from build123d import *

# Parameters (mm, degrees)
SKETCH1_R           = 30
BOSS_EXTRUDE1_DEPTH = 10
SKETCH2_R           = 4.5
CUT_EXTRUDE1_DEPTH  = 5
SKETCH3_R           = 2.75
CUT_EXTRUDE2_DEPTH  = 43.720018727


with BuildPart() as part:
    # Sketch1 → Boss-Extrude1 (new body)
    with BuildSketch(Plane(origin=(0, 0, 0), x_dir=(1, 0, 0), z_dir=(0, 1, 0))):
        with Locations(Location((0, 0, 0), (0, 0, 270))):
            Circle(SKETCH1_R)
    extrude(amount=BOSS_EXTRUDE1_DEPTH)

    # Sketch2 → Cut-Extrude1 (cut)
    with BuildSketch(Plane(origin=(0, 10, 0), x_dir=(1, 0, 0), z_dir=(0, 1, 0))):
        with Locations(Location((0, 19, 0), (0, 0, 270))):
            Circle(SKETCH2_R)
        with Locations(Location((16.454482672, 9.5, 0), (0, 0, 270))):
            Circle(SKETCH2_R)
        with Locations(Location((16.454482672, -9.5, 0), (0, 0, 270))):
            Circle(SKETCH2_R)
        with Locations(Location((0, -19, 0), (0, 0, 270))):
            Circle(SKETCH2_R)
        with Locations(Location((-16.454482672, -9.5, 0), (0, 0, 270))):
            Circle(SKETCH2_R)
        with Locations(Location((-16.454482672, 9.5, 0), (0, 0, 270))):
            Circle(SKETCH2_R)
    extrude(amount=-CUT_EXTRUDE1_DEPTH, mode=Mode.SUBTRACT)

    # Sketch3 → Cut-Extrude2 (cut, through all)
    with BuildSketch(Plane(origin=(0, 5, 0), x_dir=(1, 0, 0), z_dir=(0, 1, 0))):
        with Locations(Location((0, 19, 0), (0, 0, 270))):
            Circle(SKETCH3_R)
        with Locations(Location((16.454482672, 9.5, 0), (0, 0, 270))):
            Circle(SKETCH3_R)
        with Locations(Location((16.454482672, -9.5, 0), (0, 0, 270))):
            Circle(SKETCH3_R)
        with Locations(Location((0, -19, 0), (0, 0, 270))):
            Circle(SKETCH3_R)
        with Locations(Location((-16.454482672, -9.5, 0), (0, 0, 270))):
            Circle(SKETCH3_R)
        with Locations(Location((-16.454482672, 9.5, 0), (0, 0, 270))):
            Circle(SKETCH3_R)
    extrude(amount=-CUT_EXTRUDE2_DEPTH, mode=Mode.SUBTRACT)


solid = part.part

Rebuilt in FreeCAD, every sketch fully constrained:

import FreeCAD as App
import Part
import Sketcher
from FreeCAD import Vector

doc = App.newDocument("Part")
body = doc.addObject("PartDesign::Body", "Body")

# Sketch on XZ plane
sketch1 = body.newObject("Sketcher::SketchObject", "Sketch")
sketch1.AttachmentSupport = (doc.getObject("XZ_Plane"), [""])
sketch1.MapMode = "FlatFace"
sketch1.addGeometry(Part.Circle(Vector(0, 0, 0), Vector(0, 0, 1), 30), False)
sketch1.addConstraint(Sketcher.Constraint("Coincident", 0, 3, -1, 1))
sketch1.addConstraint(Sketcher.Constraint("Diameter", 0, 60.0))
pad1 = body.newObject("PartDesign::Pad", "Pad")
pad1.Profile = sketch1
pad1.Length = 10
pad1.Reversed = True

# Sketch on XZ plane
sketch2 = body.newObject("Sketcher::SketchObject", "Sketch001")
sketch2.AttachmentSupport = (doc.getObject("XZ_Plane"), [""])
sketch2.MapMode = "FlatFace"
sketch2.AttachmentOffset = App.Placement(Vector(0, 0, -10), App.Rotation())
sketch2.addGeometry(Part.Circle(Vector(0, -19, 0), Vector(0, 0, 1), 4.5), False)
sketch2.addGeometry(Part.Circle(Vector(16.5, -9.5, 0), Vector(0, 0, 1), 4.5), False)
sketch2.addGeometry(Part.Circle(Vector(16.5, 9.5, 0), Vector(0, 0, 1), 4.5), False)
sketch2.addGeometry(Part.Circle(Vector(0, 19, 0), Vector(0, 0, 1), 4.5), False)
sketch2.addGeometry(Part.Circle(Vector(-16.5, 9.5, 0), Vector(0, 0, 1), 4.5), False)
sketch2.addGeometry(Part.Circle(Vector(-16.5, -9.5, 0), Vector(0, 0, 1), 4.5), False)
sketch2.addConstraint(Sketcher.Constraint("Equal", 0, 1))
sketch2.addConstraint(Sketcher.Constraint("Equal", 1, 2))
sketch2.addConstraint(Sketcher.Constraint("Equal", 2, 3))
sketch2.addConstraint(Sketcher.Constraint("Equal", 3, 4))
sketch2.addConstraint(Sketcher.Constraint("Equal", 4, 5))
sketch2.addConstraint(Sketcher.Constraint("Symmetric", 0, 3, 3, 3, -1, 1))
sketch2.addConstraint(Sketcher.Constraint("Symmetric", 1, 3, 4, 3, -1, 1))
sketch2.addConstraint(Sketcher.Constraint("Symmetric", 2, 3, 5, 3, -1, 1))
sketch2.addConstraint(Sketcher.Constraint("Symmetric", 2, 3, 4, 3, -2))
sketch2.addConstraint(Sketcher.Constraint("PointOnObject", 0, 3, -2))
sketch2.addConstraint(Sketcher.Constraint("Diameter", 0, 9.0))
sketch2.addConstraint(Sketcher.Constraint("DistanceY", 0, 3, -1, 1, 19.0))
sketch2.addConstraint(Sketcher.Constraint("DistanceY", 1, 3, 2, 3, 19.0))
sketch2.addConstraint(Sketcher.Constraint("DistanceX", -1, 1, 1, 3, 16.454483))
pocket1 = body.newObject("PartDesign::Pocket", "Pocket")
pocket1.Profile = sketch2
pocket1.Length = 5
pocket1.Reversed = True

# Sketch on XZ plane
sketch3 = body.newObject("Sketcher::SketchObject", "Sketch002")
sketch3.AttachmentSupport = (doc.getObject("XZ_Plane"), [""])
sketch3.MapMode = "FlatFace"
sketch3.AttachmentOffset = App.Placement(Vector(0, 0, -5), App.Rotation())
sketch3.addGeometry(Part.Circle(Vector(0, -19, 0), Vector(0, 0, 1), 2.8), False)
sketch3.addGeometry(Part.Circle(Vector(16.5, -9.5, 0), Vector(0, 0, 1), 2.8), False)
sketch3.addGeometry(Part.Circle(Vector(16.5, 9.5, 0), Vector(0, 0, 1), 2.8), False)
sketch3.addGeometry(Part.Circle(Vector(0, 19, 0), Vector(0, 0, 1), 2.8), False)
sketch3.addGeometry(Part.Circle(Vector(-16.5, 9.5, 0), Vector(0, 0, 1), 2.8), False)
sketch3.addGeometry(Part.Circle(Vector(-16.5, -9.5, 0), Vector(0, 0, 1), 2.8), False)
sketch3.addConstraint(Sketcher.Constraint("Equal", 0, 1))
sketch3.addConstraint(Sketcher.Constraint("Equal", 1, 2))
sketch3.addConstraint(Sketcher.Constraint("Equal", 2, 3))
sketch3.addConstraint(Sketcher.Constraint("Equal", 3, 4))
sketch3.addConstraint(Sketcher.Constraint("Equal", 4, 5))
sketch3.addConstraint(Sketcher.Constraint("Symmetric", 0, 3, 3, 3, -1, 1))
sketch3.addConstraint(Sketcher.Constraint("Symmetric", 1, 3, 4, 3, -1, 1))
sketch3.addConstraint(Sketcher.Constraint("Symmetric", 2, 3, 5, 3, -1, 1))
sketch3.addConstraint(Sketcher.Constraint("Symmetric", 2, 3, 4, 3, -2))
sketch3.addConstraint(Sketcher.Constraint("PointOnObject", 0, 3, -2))
sketch3.addConstraint(Sketcher.Constraint("Diameter", 0, 5.5))
sketch3.addConstraint(Sketcher.Constraint("DistanceY", 0, 3, -1, 1, 19.0))
sketch3.addConstraint(Sketcher.Constraint("DistanceY", 1, 3, 2, 3, 19.0))
sketch3.addConstraint(Sketcher.Constraint("DistanceX", -1, 1, 1, 3, 16.454483))
pocket2 = body.newObject("PartDesign::Pocket", "Pocket001")
pocket2.Profile = sketch3
pocket2.Type = "ThroughAll"
pocket2.Reversed = True

doc.recompute()
